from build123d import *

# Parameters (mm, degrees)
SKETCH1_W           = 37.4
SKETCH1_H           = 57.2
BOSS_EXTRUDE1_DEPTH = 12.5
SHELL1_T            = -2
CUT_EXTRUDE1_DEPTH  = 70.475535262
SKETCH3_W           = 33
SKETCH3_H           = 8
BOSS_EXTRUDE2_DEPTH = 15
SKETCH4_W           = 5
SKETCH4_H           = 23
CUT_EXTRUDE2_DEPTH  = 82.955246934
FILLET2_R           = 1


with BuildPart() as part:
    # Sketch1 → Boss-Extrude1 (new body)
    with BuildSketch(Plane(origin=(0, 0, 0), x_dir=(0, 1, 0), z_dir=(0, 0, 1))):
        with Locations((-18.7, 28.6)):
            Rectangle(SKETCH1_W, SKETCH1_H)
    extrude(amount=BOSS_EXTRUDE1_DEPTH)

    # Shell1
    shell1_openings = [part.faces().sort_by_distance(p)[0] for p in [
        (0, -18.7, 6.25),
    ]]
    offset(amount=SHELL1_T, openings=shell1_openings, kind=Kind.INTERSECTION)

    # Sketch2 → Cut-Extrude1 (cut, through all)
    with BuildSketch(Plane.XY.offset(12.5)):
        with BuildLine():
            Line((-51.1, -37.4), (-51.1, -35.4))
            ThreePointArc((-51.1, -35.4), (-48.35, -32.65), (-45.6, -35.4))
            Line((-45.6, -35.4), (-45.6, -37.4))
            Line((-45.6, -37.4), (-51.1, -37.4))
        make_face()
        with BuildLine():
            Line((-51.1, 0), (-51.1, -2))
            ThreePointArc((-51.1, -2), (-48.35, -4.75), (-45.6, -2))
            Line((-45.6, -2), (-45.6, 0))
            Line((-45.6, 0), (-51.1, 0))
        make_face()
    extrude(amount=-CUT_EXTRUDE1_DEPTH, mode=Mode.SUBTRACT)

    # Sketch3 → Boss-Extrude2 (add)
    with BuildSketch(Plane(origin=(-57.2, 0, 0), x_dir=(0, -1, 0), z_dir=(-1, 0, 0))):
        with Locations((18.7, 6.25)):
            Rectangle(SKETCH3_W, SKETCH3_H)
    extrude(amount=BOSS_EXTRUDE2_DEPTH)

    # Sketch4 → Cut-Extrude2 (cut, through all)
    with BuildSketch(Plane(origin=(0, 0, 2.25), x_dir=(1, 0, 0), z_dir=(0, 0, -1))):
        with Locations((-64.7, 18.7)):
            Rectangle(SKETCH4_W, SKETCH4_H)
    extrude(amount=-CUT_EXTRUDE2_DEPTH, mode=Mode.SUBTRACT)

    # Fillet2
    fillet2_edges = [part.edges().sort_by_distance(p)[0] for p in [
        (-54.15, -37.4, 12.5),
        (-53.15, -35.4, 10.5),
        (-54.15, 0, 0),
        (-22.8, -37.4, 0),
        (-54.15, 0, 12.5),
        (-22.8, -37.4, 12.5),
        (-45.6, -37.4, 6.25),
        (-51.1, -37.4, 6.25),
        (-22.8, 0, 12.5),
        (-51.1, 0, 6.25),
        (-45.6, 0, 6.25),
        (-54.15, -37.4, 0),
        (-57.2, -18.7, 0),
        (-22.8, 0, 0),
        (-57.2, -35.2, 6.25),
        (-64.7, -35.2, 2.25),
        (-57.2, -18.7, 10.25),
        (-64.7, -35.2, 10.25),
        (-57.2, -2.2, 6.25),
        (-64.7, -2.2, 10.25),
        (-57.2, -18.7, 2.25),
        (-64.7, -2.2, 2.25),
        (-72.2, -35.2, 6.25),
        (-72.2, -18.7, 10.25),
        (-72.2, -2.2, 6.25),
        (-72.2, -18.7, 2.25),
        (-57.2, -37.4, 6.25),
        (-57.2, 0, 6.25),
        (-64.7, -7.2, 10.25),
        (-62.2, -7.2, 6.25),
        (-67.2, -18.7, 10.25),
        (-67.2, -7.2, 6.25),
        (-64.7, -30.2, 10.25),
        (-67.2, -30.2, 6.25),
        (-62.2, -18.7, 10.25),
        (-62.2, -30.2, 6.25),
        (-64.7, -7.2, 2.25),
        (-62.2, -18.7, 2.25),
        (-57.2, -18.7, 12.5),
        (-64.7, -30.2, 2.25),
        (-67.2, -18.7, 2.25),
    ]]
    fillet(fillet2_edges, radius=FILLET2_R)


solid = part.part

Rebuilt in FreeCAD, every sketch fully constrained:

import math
import FreeCAD as App
import Part
import Sketcher


def edges_at(feature, points):
    """Names of the edges that pass closest to the given points."""
    edges = feature.Shape.Edges
    near = lambda p: min(range(len(edges)), key=lambda i: edges[i].distToShape(Part.Vertex(*p))[0])
    return sorted({f"Edge{near(p) + 1}" for p in points})


def faces_at(feature, points):
    """Names of the faces that lie closest to the given points."""
    faces = feature.Shape.Faces
    near = lambda p: min(range(len(faces)), key=lambda i: faces[i].distToShape(Part.Vertex(*p))[0])
    return sorted({f"Face{near(p) + 1}" for p in points})

doc = App.newDocument("Part")
body = doc.addObject("PartDesign::Body", "Body")

# Sketch on XY plane
sketch1 = body.newObject("Sketcher::SketchObject", "Sketch")
sketch1.AttachmentSupport = (doc.getObject("XY_Plane"), [""])
sketch1.MapMode = "FlatFace"
sketch1.addGeometry([
    Part.LineSegment(App.Vector(-57, -37, 0), App.Vector(0, -37, 0)),
    Part.LineSegment(App.Vector(0, -37, 0), App.Vector(0, 0, 0)),
    Part.LineSegment(App.Vector(0, 0, 0), App.Vector(-57, 0, 0)),
    Part.LineSegment(App.Vector(-57, 0, 0), App.Vector(-57, -37, 0)),
], False)
sketch1.addConstraint([
    Sketcher.Constraint("Coincident", 0, 2, 1, 1),
    Sketcher.Constraint("Coincident", 1, 2, 2, 1),
    Sketcher.Constraint("Coincident", 2, 2, 3, 1),
    Sketcher.Constraint("Coincident", 3, 2, 0, 1),
    Sketcher.Constraint("Horizontal", 0),
    Sketcher.Constraint("Vertical", 1),
    Sketcher.Constraint("Horizontal", 2),
    Sketcher.Constraint("Vertical", 3),
    Sketcher.Constraint("Coincident", 1, 2, -1, 1),
    Sketcher.Constraint("DistanceX", 0, 1, 0, 2, 57.2),
    Sketcher.Constraint("DistanceY", 1, 1, 1, 2, 37.4),
])
pad1 = body.newObject("PartDesign::Pad", "Pad")
pad1.Profile = sketch1
pad1.Length = 12.5
doc.recompute()

thickness = body.newObject("PartDesign::Thickness", "Thickness")
thickness.Base = (pad1, faces_at(pad1, [(0, -18.7, 6.25)]))
thickness.Value = 2
thickness.Reversed = True
thickness.Join = "Intersection"

# Sketch on XY plane
sketch2 = body.newObject("Sketcher::SketchObject", "Sketch001")
sketch2.AttachmentSupport = (doc.getObject("XY_Plane"), [""])
sketch2.MapMode = "FlatFace"
sketch2.AttachmentOffset = App.Placement(App.Vector(0, 0, 12.5), App.Rotation())
sketch2.addGeometry([
    Part.LineSegment(App.Vector(-51.1, -35.4, 0), App.Vector(-51.1, -37.4, 0)),  # 0
    Part.LineSegment(App.Vector(-51.1, -37.4, 0), App.Vector(-45.6, -37.4, 0)),  # 1
    Part.LineSegment(App.Vector(-45.6, -37.4, 0), App.Vector(-45.6, -35.4, 0)),  # 2
    Part.ArcOfCircle(Part.Circle(App.Vector(-48.4, -35.4, 0), App.Vector(0, 0, 1), 2.8), math.radians(0), math.radians(180)),  # 3
    Part.LineSegment(App.Vector(-51.1, 0, 0), App.Vector(-51.1, -2, 0)),  # 4
    Part.ArcOfCircle(Part.Circle(App.Vector(-48.4, -2, 0), App.Vector(0, 0, 1), 2.8), math.radians(180), math.radians(360)),  # 5
    Part.LineSegment(App.Vector(-45.6, -2, 0), App.Vector(-45.6, 0, 0)),  # 6
    Part.LineSegment(App.Vector(-45.6, 0, 0), App.Vector(-51.1, 0, 0)),  # 7
], False)
sketch2.addConstraint([
    Sketcher.Constraint("Coincident", 0, 2, 1, 1),
    Sketcher.Constraint("Coincident", 1, 2, 2, 1),
    Sketcher.Constraint("Tangent", 2, 2, 3, 1),
    Sketcher.Constraint("Tangent", 3, 2, 0, 1),
    Sketcher.Constraint("Tangent", 4, 2, 5, 1),
    Sketcher.Constraint("Tangent", 5, 2, 6, 1),
    Sketcher.Constraint("Coincident", 6, 2, 7, 1),
    Sketcher.Constraint("Coincident", 7, 2, 4, 1),
    Sketcher.Constraint("Vertical", 0),
    Sketcher.Constraint("Horizontal", 1),
    Sketcher.Constraint("Vertical", 2),
    Sketcher.Constraint("Vertical", 4),
    Sketcher.Constraint("Vertical", 6),
    Sketcher.Constraint("Horizontal", 7),
    Sketcher.Constraint("Equal", 3, 5),
    Sketcher.Constraint("PointOnObject", 6, 2, -1),
    Sketcher.Constraint("Vertical", 3, 3, 5, 3),
    Sketcher.Constraint("Equal", 2, 4),
    Sketcher.Constraint("DistanceY", 0, 2, 0, 1, 2.0),
    Sketcher.Constraint("Radius", 3, 2.75),
    Sketcher.Constraint("DistanceY", 3, 3, -1, 1, 35.4),
    Sketcher.Constraint("DistanceX", 0, 2, -1, 1, 51.1),
])
pocket1 = body.newObject("PartDesign::Pocket", "Pocket")
pocket1.Profile = sketch2
pocket1.Type = "ThroughAll"

# Sketch on YZ plane
sketch3 = body.newObject("Sketcher::SketchObject", "Sketch002")
sketch3.AttachmentSupport = (doc.getObject("YZ_Plane"), [""])
sketch3.MapMode = "FlatFace"
sketch3.AttachmentOffset = App.Placement(App.Vector(0, 0, -57.2), App.Rotation())
sketch3.addGeometry([
    Part.LineSegment(App.Vector(-2, 10, 0), App.Vector(-2, 2, 0)),
    Part.LineSegment(App.Vector(-2, 2, 0), App.Vector(-35, 2, 0)),
    Part.LineSegment(App.Vector(-35, 2, 0), App.Vector(-35, 10, 0)),
    Part.LineSegment(App.Vector(-35, 10, 0), App.Vector(-2, 10, 0)),
], False)
sketch3.addConstraint([
    Sketcher.Constraint("Coincident", 0, 2, 1, 1),
    Sketcher.Constraint("Coincident", 1, 2, 2, 1),
    Sketcher.Constraint("Coincident", 2, 2, 3, 1),
    Sketcher.Constraint("Coincident", 3, 2, 0, 1),
    Sketcher.Constraint("Vertical", 0),
    Sketcher.Constraint("Horizontal", 1),
    Sketcher.Constraint("Vertical", 2),
    Sketcher.Constraint("Horizontal", 3),
    Sketcher.Constraint("DistanceX", 1, 2, 1, 1, 33.0),
    Sketcher.Constraint("DistanceY", 0, 2, 0, 1, 8.0),
    Sketcher.Constraint("DistanceX", 0, 2, -1, 1, 2.2),
    Sketcher.Constraint("DistanceY", -1, 1, 0, 2, 2.25),
])
pad2 = body.newObject("PartDesign::Pad", "Pad001")
pad2.Profile = sketch3
pad2.Length = 15
pad2.Reversed = True

# Sketch on XY plane
sketch4 = body.newObject("Sketcher::SketchObject", "Sketch003")
sketch4.AttachmentSupport = (doc.getObject("XY_Plane"), [""])
sketch4.MapMode = "FlatFace"
sketch4.AttachmentOffset = App.Placement(App.Vector(0, 0, 2.25), App.Rotation())
sketch4.addGeometry([
    Part.LineSegment(App.Vector(-67, -30, 0), App.Vector(-67, -7, 0)),
    Part.LineSegment(App.Vector(-67, -7, 0), App.Vector(-62, -7, 0)),
    Part.LineSegment(App.Vector(-62, -7, 0), App.Vector(-62, -30, 0)),
    Part.LineSegment(App.Vector(-62, -30, 0), App.Vector(-67, -30, 0)),
], False)
sketch4.addConstraint([
    Sketcher.Constraint("Coincident", 0, 2, 1, 1),
    Sketcher.Constraint("Coincident", 1, 2, 2, 1),
    Sketcher.Constraint("Coincident", 2, 2, 3, 1),
    Sketcher.Constraint("Coincident", 3, 2, 0, 1),
    Sketcher.Constraint("Vertical", 0),
    Sketcher.Constraint("Horizontal", 1),
    Sketcher.Constraint("Vertical", 2),
    Sketcher.Constraint("Horizontal", 3),
    Sketcher.Constraint("DistanceX", 1, 1, 1, 2, 5.0),
    Sketcher.Constraint("DistanceY", 0, 1, 0, 2, 23.0),
    Sketcher.Constraint("DistanceX", 0, 2, -1, 1, 67.2),
    Sketcher.Constraint("DistanceY", 0, 2, -1, 1, 7.2),
])
pocket2 = body.newObject("PartDesign::Pocket", "Pocket001")
pocket2.Profile = sketch4
pocket2.Type = "ThroughAll"
pocket2.Reversed = True
doc.recompute()

fillet = body.newObject("PartDesign::Fillet", "Fillet")
fillet.Base = (pocket2, edges_at(pocket2, [
    (-54.15, -37.4, 12.5),
    (-53.15, -35.4, 10.5),
    (-54.15, 0, 0),
    (-22.8, -37.4, 0),
    (-54.15, 0, 12.5),
    (-22.8, -37.4, 12.5),
    (-45.6, -37.4, 6.25),
    (-51.1, -37.4, 6.25),
    (-22.8, 0, 12.5),
    (-51.1, 0, 6.25),
    (-45.6, 0, 6.25),
    (-54.15, -37.4, 0),
    (-57.2, -18.7, 0),
    (-22.8, 0, 0),
    (-57.2, -35.2, 6.25),
    (-64.7, -35.2, 2.25),
    (-57.2, -18.7, 10.25),
    (-64.7, -35.2, 10.25),
    (-57.2, -2.2, 6.25),
    (-64.7, -2.2, 10.25),
    (-57.2, -18.7, 2.25),
    (-64.7, -2.2, 2.25),
    (-72.2, -35.2, 6.25),
    (-72.2, -18.7, 10.25),
    (-72.2, -2.2, 6.25),
    (-72.2, -18.7, 2.25),
    (-57.2, -37.4, 6.25),
    (-57.2, 0, 6.25),
    (-64.7, -7.2, 10.25),
    (-62.2, -7.2, 6.25),
    (-67.2, -18.7, 10.25),
    (-67.2, -7.2, 6.25),
    (-64.7, -30.2, 10.25),
    (-67.2, -30.2, 6.25),
    (-62.2, -18.7, 10.25),
    (-62.2, -30.2, 6.25),
    (-64.7, -7.2, 2.25),
    (-62.2, -18.7, 2.25),
    (-57.2, -18.7, 12.5),
    (-64.7, -30.2, 2.25),
    (-67.2, -18.7, 2.25),
]))
fillet.Radius = 1

doc.recompute()
